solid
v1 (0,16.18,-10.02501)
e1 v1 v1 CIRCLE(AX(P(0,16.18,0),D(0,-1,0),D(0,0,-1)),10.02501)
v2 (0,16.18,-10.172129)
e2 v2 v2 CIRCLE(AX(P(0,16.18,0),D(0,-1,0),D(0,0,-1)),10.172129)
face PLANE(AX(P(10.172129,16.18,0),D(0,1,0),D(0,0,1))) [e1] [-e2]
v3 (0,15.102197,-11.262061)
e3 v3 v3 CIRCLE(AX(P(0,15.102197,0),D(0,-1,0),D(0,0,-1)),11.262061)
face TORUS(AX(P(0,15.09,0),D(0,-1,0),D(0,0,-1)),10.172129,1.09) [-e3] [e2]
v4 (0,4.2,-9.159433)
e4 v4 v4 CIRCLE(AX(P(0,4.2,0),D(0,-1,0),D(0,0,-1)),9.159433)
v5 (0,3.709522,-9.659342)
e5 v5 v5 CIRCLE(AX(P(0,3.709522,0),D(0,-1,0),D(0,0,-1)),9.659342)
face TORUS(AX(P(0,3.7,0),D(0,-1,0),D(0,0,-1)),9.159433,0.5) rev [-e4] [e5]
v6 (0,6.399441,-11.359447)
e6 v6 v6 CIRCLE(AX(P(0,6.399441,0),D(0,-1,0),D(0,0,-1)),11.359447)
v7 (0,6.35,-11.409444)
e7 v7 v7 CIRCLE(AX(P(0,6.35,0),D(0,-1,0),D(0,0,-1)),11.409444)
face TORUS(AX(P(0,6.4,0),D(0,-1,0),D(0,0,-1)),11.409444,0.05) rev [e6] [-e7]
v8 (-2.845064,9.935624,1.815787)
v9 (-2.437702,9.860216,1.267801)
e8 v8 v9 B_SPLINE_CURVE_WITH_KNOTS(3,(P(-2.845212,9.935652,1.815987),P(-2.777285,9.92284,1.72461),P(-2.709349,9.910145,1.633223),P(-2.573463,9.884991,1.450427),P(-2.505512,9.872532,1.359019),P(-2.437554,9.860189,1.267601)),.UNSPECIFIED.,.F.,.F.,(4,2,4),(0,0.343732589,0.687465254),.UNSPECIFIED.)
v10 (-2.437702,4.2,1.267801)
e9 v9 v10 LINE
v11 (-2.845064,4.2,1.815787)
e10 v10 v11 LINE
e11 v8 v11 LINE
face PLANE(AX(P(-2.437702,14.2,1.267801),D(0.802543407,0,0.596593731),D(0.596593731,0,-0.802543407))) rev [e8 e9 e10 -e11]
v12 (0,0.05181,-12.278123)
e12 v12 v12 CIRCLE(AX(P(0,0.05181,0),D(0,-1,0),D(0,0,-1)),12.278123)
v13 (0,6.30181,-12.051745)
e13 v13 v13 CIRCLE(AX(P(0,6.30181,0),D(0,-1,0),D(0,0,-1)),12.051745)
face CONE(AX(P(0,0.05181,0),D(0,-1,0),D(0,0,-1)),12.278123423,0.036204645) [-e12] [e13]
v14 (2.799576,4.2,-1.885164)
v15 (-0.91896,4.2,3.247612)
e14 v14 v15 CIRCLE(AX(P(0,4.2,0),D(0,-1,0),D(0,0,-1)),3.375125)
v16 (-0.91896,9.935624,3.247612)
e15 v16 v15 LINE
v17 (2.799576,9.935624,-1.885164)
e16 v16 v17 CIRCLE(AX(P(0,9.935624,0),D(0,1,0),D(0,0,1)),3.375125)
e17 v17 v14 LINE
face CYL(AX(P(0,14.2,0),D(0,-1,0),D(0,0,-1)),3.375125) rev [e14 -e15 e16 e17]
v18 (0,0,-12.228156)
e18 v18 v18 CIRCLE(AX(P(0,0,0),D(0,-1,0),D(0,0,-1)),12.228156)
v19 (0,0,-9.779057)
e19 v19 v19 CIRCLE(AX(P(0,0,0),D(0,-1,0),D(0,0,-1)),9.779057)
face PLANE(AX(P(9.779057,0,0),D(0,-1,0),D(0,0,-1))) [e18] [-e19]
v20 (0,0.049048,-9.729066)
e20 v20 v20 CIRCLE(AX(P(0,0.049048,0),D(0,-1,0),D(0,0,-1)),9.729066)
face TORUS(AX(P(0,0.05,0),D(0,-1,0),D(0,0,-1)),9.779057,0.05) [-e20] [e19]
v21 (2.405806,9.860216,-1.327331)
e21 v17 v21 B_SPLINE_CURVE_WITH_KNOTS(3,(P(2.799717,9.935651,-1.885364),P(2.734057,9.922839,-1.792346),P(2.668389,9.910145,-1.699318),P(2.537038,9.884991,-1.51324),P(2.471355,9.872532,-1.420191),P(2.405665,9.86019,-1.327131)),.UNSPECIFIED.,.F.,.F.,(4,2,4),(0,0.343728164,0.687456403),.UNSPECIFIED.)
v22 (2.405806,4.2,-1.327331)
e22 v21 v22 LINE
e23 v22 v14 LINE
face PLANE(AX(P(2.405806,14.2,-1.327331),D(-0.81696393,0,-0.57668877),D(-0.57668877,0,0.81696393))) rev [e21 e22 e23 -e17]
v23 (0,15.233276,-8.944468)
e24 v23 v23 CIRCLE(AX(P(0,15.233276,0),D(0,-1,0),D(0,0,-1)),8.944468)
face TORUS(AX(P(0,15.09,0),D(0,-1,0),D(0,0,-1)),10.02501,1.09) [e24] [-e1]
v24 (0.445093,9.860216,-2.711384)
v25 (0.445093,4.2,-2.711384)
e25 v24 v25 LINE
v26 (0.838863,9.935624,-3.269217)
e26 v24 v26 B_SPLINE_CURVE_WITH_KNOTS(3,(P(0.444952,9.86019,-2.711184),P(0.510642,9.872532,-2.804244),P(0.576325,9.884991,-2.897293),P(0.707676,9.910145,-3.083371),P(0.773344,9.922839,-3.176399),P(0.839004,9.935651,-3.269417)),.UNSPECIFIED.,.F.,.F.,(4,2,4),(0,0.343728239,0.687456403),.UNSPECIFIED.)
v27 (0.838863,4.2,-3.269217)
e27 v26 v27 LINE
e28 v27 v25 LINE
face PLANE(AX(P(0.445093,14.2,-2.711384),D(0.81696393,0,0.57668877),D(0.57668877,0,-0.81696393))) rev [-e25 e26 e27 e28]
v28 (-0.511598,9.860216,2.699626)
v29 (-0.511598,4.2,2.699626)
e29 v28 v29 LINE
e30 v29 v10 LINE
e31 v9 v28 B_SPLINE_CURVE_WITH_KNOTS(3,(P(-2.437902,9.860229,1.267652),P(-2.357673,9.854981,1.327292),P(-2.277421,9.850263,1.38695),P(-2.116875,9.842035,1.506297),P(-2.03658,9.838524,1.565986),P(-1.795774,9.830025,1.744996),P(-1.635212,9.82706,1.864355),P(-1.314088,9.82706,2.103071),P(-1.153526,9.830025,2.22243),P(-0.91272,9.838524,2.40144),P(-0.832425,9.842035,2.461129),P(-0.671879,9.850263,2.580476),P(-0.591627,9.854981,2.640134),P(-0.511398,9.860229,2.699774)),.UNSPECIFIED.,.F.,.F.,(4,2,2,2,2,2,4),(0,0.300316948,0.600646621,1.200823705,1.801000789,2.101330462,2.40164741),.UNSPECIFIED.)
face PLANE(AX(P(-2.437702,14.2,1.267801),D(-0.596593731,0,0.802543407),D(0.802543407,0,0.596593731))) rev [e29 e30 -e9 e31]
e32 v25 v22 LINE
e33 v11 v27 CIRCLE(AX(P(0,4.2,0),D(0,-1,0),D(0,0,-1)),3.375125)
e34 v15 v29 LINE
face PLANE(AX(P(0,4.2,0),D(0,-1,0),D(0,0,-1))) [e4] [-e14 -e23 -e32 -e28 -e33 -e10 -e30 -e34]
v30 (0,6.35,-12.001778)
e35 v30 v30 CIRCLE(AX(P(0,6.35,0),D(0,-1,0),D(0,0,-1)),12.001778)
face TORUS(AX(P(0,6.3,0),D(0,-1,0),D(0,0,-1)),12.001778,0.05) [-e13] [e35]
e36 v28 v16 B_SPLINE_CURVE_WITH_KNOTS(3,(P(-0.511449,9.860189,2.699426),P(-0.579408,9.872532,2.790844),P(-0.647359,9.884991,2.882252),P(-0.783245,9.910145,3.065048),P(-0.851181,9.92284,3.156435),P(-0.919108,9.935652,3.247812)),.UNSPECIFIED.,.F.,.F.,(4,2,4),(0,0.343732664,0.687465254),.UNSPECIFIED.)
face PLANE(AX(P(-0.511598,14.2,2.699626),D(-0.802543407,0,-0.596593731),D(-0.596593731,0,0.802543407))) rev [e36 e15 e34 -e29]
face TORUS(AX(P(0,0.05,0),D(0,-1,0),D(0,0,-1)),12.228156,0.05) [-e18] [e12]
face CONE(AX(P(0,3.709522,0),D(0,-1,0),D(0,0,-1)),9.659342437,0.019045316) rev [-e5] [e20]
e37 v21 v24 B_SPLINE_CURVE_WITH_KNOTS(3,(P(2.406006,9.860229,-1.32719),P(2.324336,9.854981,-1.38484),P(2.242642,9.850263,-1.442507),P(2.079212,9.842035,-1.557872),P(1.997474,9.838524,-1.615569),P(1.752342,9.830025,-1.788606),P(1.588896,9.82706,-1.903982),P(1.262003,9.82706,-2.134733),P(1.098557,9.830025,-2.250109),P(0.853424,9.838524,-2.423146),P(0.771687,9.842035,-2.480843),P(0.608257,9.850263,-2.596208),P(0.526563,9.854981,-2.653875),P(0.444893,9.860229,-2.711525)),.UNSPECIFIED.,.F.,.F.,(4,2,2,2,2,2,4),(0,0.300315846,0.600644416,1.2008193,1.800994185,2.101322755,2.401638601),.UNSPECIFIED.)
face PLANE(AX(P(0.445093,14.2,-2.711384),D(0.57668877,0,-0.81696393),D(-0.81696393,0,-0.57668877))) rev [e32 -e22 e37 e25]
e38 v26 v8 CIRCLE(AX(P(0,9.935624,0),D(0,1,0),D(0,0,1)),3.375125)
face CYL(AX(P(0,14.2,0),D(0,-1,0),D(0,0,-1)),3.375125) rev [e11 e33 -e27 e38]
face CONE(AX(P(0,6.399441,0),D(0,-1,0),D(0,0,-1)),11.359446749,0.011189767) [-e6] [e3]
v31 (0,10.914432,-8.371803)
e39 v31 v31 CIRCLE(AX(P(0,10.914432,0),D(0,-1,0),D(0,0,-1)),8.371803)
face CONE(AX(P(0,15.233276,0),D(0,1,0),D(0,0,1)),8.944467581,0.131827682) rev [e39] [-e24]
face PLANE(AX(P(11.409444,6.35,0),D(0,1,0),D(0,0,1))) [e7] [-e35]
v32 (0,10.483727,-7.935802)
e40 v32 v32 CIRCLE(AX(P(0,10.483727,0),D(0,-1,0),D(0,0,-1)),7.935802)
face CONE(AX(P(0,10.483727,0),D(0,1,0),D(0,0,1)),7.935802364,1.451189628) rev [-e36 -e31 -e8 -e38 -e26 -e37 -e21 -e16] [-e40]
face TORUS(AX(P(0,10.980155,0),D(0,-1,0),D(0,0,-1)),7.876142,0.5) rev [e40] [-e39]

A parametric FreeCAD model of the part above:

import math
import FreeCAD as App
import Part
import Sketcher
Q = App.Units.Quantity

doc = App.newDocument("Part")
body = doc.addObject("PartDesign::Body", "Body")

sketch1 = doc.addObject("Sketcher::SketchObject", "Sketch")
body.addObject(sketch1)
sketch1.AttachmentSupport = (doc.XY_Plane, [""])
sketch1.MapMode = "FlatFace"
sketch1.addGeometry(Part.LineSegment(App.Vector(9.779, 0, 0), App.Vector(12.228, 0, 0)), False)
sketch1.addGeometry(Part.ArcOfCircle(Part.Circle(App.Vector(12.228, 0.05, 0), App.Vector(0, 0, 1), 0.05), math.radians(-90), math.radians(2)), False)
sketch1.addGeometry(Part.LineSegment(App.Vector(12.278, 0.052, 0), App.Vector(12.052, 6.302, 0)), False)
sketch1.addGeometry(Part.ArcOfCircle(Part.Circle(App.Vector(12.002, 6.3, 0), App.Vector(0, 0, 1), 0.05), math.radians(2), math.radians(90)), False)
sketch1.addGeometry(Part.LineSegment(App.Vector(12.002, 6.35, 0), App.Vector(11.409, 6.35, 0)), False)
sketch1.addGeometry(Part.ArcOfCircle(Part.Circle(App.Vector(11.409, 6.4, 0), App.Vector(0, 0, 1), 0.05), math.radians(-179), math.radians(-90)), False)
sketch1.addGeometry(Part.LineSegment(App.Vector(11.359, 6.399, 0), App.Vector(11.262, 15.102, 0)), False)
sketch1.addGeometry(Part.ArcOfCircle(Part.Circle(App.Vector(10.172, 15.09, 0), App.Vector(0, 0, 1), 1.09), math.radians(1), math.radians(90)), False)
sketch1.addGeometry(Part.LineSegment(App.Vector(10.172, 16.18, 0), App.Vector(10.025, 16.18, 0)), False)
sketch1.addGeometry(Part.ArcOfCircle(Part.Circle(App.Vector(10.025, 15.09, 0), App.Vector(0, 0, 1), 1.09), math.radians(90), math.radians(172)), False)
sketch1.addGeometry(Part.LineSegment(App.Vector(8.944, 15.233, 0), App.Vector(8.372, 10.914, 0)), False)
sketch1.addGeometry(Part.ArcOfCircle(Part.Circle(App.Vector(7.876, 10.98, 0), App.Vector(0, 0, 1), 0.5), math.radians(-83), math.radians(-8)), False)
sketch1.addGeometry(Part.LineSegment(App.Vector(7.936, 10.484, 0), App.Vector(0, 9.53, 0)), False)
sketch1.addGeometry(Part.LineSegment(App.Vector(0, 9.53, 0), App.Vector(0, 4.2, 0)), False)
sketch1.addGeometry(Part.LineSegment(App.Vector(0, 4.2, 0), App.Vector(9.159, 4.2, 0)), False)
sketch1.addGeometry(Part.ArcOfCircle(Part.Circle(App.Vector(9.159, 3.7, 0), App.Vector(0, 0, 1), 0.5), math.radians(1), math.radians(90)), False)
sketch1.addGeometry(Part.LineSegment(App.Vector(9.659, 3.71, 0), App.Vector(9.729, 0.049, 0)), False)
sketch1.addGeometry(Part.ArcOfCircle(Part.Circle(App.Vector(9.779, 0.05, 0), App.Vector(0, 0, 1), 0.05), math.radians(-179), math.radians(-90)), False)
sketch1.addConstraint(Sketcher.Constraint("Tangent", 0, 2, 1, 1))
sketch1.addConstraint(Sketcher.Constraint("Tangent", 1, 2, 2, 1))
sketch1.addConstraint(Sketcher.Constraint("Tangent", 2, 2, 3, 1))
sketch1.addConstraint(Sketcher.Constraint("Tangent", 3, 2, 4, 1))
sketch1.addConstraint(Sketcher.Constraint("Tangent", 4, 2, 5, 2))
sketch1.addConstraint(Sketcher.Constraint("Tangent", 5, 1, 6, 1))
sketch1.addConstraint(Sketcher.Constraint("Tangent", 6, 2, 7, 1))
sketch1.addConstraint(Sketcher.Constraint("Tangent", 7, 2, 8, 1))
sketch1.addConstraint(Sketcher.Constraint("Tangent", 8, 2, 9, 1))
sketch1.addConstraint(Sketcher.Constraint("Tangent", 9, 2, 10, 1))
sketch1.addConstraint(Sketcher.Constraint("Tangent", 10, 2, 11, 2))
sketch1.addConstraint(Sketcher.Constraint("Tangent", 11, 1, 12, 1))
sketch1.addConstraint(Sketcher.Constraint("Coincident", 12, 2, 13, 1))
sketch1.addConstraint(Sketcher.Constraint("Coincident", 13, 2, 14, 1))
sketch1.addConstraint(Sketcher.Constraint("Tangent", 14, 2, 15, 2))
sketch1.addConstraint(Sketcher.Constraint("Tangent", 15, 1, 16, 1))
sketch1.addConstraint(Sketcher.Constraint("Tangent", 16, 2, 17, 1))
sketch1.addConstraint(Sketcher.Constraint("Tangent", 17, 2, 0, 1))
sketch1.addConstraint(Sketcher.Constraint("Horizontal", 0))
sketch1.addConstraint(Sketcher.Constraint("Horizontal", 4))
sketch1.addConstraint(Sketcher.Constraint("Horizontal", 8))
sketch1.addConstraint(Sketcher.Constraint("Vertical", 13))
sketch1.addConstraint(Sketcher.Constraint("Horizontal", 14))
sketch1.addConstraint(Sketcher.Constraint("Equal", 1, 3))
sketch1.addConstraint(Sketcher.Constraint("Equal", 3, 5))
sketch1.addConstraint(Sketcher.Constraint("Equal", 7, 9))
sketch1.addConstraint(Sketcher.Constraint("Equal", 11, 15))
sketch1.addConstraint(Sketcher.Constraint("Equal", 5, 17))
sketch1.addConstraint(Sketcher.Constraint("PointOnObject", 0, 2, -1))
sketch1.addConstraint(Sketcher.Constraint("PointOnObject", 12, 2, -2))
sketch1.addConstraint(Sketcher.Constraint("Radius", 11, Q("0.5 mm")))
sketch1.addConstraint(Sketcher.Constraint("Radius", 1, Q("0.05 mm")))
sketch1.addConstraint(Sketcher.Constraint("Radius", 7, Q("1.09 mm")))
sketch1.addConstraint(Sketcher.Constraint("DistanceY", 13, 2, 13, 1, Q("5.33 mm")))
sketch1.addConstraint(Sketcher.Constraint("DistanceY", -1, 1, 3, 3, Q("6.3 mm")))
sketch1.addConstraint(Sketcher.Constraint("DistanceY", -1, 1, 15, 3, Q("3.7 mm")))
sketch1.addConstraint(Sketcher.Constraint("DistanceY", -1, 1, 7, 3, Q("15.09 mm")))
sketch1.addConstraint(Sketcher.Constraint("DistanceX", 0, 1, 0, 2, Q("2.449099 mm")))
sketch1.addConstraint(Sketcher.Constraint("DistanceX", 11, 1, 10, 2, Q("0.436001 mm")))
sketch1.addConstraint(Sketcher.Constraint("Distance", 2, Q("6.254098 mm")))
sketch1.addConstraint(Sketcher.Constraint("Distance", 6, Q("8.703301 mm")))
sketch1.addConstraint(Sketcher.Constraint("DistanceX", 8, 2, 8, 1, Q("0.147119 mm")))
sketch1.addConstraint(Sketcher.Constraint("DistanceX", 5, 3, 2, 2, Q("0.642302 mm")))
sketch1.addConstraint(Sketcher.Constraint("DistanceX", 15, 1, 4, 2, Q("1.750101 mm")))
sketch1.addConstraint(Sketcher.Constraint("DistanceX", 14, 1, 14, 2, Q("9.159433 mm")))
sketch1.addConstraint(Sketcher.Constraint("DistanceX", -1, 1, 11, 3, Q("7.876142 mm")))
revolution = doc.addObject("PartDesign::Revolution", "Revolution")
body.addObject(revolution)
revolution.Profile = sketch1
revolution.ReferenceAxis = (sketch1, ["V_Axis"])
revolution.Angle = 360

sketch2 = doc.addObject("Sketcher::SketchObject", "Sketch001")
body.addObject(sketch2)
sketch2.AttachmentSupport = (doc.XZ_Plane, [""])
sketch2.MapMode = "FlatFace"
sketch2.AttachmentOffset = App.Placement(App.Vector(0, 0, -4.2), App.Rotation())
sketch2.addGeometry(Part.LineSegment(App.Vector(2.4, -1.3, 0), App.Vector(2.8, -1.9, 0)), False)
sketch2.addGeometry(Part.ArcOfCircle(Part.Circle(App.Vector(0, 0, 0), App.Vector(0, 0, 1), 3.4), math.radians(-34), math.radians(106)), False)
sketch2.addGeometry(Part.LineSegment(App.Vector(-0.9, 3.2, 0), App.Vector(-0.5, 2.7, 0)), False)
sketch2.addGeometry(Part.LineSegment(App.Vector(-0.5, 2.7, 0), App.Vector(-2.4, 1.3, 0)), False)
sketch2.addGeometry(Part.LineSegment(App.Vector(-2.4, 1.3, 0), App.Vector(-2.8, 1.8, 0)), False)
sketch2.addGeometry(Part.ArcOfCircle(Part.Circle(App.Vector(0, 0, 0), App.Vector(0, 0, 1), 3.4), math.radians(147), math.radians(284)), False)
sketch2.addGeometry(Part.LineSegment(App.Vector(0.8, -3.3, 0), App.Vector(0.4, -2.7, 0)), False)
sketch2.addGeometry(Part.LineSegment(App.Vector(0.4, -2.7, 0), App.Vector(2.4, -1.3, 0)), False)
sketch2.addConstraint(Sketcher.Constraint("Coincident", 0, 2, 1, 1))
sketch2.addConstraint(Sketcher.Constraint("Coincident", 1, 2, 2, 1))
sketch2.addConstraint(Sketcher.Constraint("Coincident", 2, 2, 3, 1))
sketch2.addConstraint(Sketcher.Constraint("Coincident", 3, 2, 4, 1))
sketch2.addConstraint(Sketcher.Constraint("Coincident", 4, 2, 5, 1))
sketch2.addConstraint(Sketcher.Constraint("Coincident", 5, 2, 6, 1))
sketch2.addConstraint(Sketcher.Constraint("Coincident", 6, 2, 7, 1))
sketch2.addConstraint(Sketcher.Constraint("Coincident", 7, 2, 0, 1))
sketch2.addConstraint(Sketcher.Constraint("Coincident", 1, 3, -1, 1))
sketch2.addConstraint(Sketcher.Constraint("Coincident", 5, 3, -1, 1))
sketch2.addConstraint(Sketcher.Constraint("Equal", 1, 5))
sketch2.addConstraint(Sketcher.Constraint("Perpendicular", 2, 3))
sketch2.addConstraint(Sketcher.Constraint("Perpendicular", 3, 4))
sketch2.addConstraint(Sketcher.Constraint("Parallel", 0, 6))
sketch2.addConstraint(Sketcher.Constraint("Perpendicular", 6, 7))
sketch2.addConstraint(Sketcher.Constraint("Equal", 0, 2))
sketch2.addConstraint(Sketcher.Constraint("Equal", 2, 4))
sketch2.addConstraint(Sketcher.Constraint("Equal", 4, 6))
sketch2.addConstraint(Sketcher.Constraint("Equal", 3, 7))
sketch2.addConstraint(Sketcher.Constraint("Distance", 3, Q("2.4 mm")))
sketch2.addConstraint(Sketcher.Constraint("Radius", 1, Q("3.375125 mm")))
sketch2.addConstraint(Sketcher.Constraint("DistanceX", 2, 2, -1, 1, Q("0.511598 mm")))
sketch2.addConstraint(Sketcher.Constraint("DistanceY", -1, 1, 3, 2, Q("1.267801 mm")))
sketch2.addConstraint(Sketcher.Constraint("DistanceY", 7, 2, -1, 1, Q("1.327331 mm")))
pocket1 = doc.addObject("PartDesign::Pocket", "Pocket")
body.addObject(pocket1)
pocket1.Profile = sketch2
pocket1.Length = 10

doc.recompute()
